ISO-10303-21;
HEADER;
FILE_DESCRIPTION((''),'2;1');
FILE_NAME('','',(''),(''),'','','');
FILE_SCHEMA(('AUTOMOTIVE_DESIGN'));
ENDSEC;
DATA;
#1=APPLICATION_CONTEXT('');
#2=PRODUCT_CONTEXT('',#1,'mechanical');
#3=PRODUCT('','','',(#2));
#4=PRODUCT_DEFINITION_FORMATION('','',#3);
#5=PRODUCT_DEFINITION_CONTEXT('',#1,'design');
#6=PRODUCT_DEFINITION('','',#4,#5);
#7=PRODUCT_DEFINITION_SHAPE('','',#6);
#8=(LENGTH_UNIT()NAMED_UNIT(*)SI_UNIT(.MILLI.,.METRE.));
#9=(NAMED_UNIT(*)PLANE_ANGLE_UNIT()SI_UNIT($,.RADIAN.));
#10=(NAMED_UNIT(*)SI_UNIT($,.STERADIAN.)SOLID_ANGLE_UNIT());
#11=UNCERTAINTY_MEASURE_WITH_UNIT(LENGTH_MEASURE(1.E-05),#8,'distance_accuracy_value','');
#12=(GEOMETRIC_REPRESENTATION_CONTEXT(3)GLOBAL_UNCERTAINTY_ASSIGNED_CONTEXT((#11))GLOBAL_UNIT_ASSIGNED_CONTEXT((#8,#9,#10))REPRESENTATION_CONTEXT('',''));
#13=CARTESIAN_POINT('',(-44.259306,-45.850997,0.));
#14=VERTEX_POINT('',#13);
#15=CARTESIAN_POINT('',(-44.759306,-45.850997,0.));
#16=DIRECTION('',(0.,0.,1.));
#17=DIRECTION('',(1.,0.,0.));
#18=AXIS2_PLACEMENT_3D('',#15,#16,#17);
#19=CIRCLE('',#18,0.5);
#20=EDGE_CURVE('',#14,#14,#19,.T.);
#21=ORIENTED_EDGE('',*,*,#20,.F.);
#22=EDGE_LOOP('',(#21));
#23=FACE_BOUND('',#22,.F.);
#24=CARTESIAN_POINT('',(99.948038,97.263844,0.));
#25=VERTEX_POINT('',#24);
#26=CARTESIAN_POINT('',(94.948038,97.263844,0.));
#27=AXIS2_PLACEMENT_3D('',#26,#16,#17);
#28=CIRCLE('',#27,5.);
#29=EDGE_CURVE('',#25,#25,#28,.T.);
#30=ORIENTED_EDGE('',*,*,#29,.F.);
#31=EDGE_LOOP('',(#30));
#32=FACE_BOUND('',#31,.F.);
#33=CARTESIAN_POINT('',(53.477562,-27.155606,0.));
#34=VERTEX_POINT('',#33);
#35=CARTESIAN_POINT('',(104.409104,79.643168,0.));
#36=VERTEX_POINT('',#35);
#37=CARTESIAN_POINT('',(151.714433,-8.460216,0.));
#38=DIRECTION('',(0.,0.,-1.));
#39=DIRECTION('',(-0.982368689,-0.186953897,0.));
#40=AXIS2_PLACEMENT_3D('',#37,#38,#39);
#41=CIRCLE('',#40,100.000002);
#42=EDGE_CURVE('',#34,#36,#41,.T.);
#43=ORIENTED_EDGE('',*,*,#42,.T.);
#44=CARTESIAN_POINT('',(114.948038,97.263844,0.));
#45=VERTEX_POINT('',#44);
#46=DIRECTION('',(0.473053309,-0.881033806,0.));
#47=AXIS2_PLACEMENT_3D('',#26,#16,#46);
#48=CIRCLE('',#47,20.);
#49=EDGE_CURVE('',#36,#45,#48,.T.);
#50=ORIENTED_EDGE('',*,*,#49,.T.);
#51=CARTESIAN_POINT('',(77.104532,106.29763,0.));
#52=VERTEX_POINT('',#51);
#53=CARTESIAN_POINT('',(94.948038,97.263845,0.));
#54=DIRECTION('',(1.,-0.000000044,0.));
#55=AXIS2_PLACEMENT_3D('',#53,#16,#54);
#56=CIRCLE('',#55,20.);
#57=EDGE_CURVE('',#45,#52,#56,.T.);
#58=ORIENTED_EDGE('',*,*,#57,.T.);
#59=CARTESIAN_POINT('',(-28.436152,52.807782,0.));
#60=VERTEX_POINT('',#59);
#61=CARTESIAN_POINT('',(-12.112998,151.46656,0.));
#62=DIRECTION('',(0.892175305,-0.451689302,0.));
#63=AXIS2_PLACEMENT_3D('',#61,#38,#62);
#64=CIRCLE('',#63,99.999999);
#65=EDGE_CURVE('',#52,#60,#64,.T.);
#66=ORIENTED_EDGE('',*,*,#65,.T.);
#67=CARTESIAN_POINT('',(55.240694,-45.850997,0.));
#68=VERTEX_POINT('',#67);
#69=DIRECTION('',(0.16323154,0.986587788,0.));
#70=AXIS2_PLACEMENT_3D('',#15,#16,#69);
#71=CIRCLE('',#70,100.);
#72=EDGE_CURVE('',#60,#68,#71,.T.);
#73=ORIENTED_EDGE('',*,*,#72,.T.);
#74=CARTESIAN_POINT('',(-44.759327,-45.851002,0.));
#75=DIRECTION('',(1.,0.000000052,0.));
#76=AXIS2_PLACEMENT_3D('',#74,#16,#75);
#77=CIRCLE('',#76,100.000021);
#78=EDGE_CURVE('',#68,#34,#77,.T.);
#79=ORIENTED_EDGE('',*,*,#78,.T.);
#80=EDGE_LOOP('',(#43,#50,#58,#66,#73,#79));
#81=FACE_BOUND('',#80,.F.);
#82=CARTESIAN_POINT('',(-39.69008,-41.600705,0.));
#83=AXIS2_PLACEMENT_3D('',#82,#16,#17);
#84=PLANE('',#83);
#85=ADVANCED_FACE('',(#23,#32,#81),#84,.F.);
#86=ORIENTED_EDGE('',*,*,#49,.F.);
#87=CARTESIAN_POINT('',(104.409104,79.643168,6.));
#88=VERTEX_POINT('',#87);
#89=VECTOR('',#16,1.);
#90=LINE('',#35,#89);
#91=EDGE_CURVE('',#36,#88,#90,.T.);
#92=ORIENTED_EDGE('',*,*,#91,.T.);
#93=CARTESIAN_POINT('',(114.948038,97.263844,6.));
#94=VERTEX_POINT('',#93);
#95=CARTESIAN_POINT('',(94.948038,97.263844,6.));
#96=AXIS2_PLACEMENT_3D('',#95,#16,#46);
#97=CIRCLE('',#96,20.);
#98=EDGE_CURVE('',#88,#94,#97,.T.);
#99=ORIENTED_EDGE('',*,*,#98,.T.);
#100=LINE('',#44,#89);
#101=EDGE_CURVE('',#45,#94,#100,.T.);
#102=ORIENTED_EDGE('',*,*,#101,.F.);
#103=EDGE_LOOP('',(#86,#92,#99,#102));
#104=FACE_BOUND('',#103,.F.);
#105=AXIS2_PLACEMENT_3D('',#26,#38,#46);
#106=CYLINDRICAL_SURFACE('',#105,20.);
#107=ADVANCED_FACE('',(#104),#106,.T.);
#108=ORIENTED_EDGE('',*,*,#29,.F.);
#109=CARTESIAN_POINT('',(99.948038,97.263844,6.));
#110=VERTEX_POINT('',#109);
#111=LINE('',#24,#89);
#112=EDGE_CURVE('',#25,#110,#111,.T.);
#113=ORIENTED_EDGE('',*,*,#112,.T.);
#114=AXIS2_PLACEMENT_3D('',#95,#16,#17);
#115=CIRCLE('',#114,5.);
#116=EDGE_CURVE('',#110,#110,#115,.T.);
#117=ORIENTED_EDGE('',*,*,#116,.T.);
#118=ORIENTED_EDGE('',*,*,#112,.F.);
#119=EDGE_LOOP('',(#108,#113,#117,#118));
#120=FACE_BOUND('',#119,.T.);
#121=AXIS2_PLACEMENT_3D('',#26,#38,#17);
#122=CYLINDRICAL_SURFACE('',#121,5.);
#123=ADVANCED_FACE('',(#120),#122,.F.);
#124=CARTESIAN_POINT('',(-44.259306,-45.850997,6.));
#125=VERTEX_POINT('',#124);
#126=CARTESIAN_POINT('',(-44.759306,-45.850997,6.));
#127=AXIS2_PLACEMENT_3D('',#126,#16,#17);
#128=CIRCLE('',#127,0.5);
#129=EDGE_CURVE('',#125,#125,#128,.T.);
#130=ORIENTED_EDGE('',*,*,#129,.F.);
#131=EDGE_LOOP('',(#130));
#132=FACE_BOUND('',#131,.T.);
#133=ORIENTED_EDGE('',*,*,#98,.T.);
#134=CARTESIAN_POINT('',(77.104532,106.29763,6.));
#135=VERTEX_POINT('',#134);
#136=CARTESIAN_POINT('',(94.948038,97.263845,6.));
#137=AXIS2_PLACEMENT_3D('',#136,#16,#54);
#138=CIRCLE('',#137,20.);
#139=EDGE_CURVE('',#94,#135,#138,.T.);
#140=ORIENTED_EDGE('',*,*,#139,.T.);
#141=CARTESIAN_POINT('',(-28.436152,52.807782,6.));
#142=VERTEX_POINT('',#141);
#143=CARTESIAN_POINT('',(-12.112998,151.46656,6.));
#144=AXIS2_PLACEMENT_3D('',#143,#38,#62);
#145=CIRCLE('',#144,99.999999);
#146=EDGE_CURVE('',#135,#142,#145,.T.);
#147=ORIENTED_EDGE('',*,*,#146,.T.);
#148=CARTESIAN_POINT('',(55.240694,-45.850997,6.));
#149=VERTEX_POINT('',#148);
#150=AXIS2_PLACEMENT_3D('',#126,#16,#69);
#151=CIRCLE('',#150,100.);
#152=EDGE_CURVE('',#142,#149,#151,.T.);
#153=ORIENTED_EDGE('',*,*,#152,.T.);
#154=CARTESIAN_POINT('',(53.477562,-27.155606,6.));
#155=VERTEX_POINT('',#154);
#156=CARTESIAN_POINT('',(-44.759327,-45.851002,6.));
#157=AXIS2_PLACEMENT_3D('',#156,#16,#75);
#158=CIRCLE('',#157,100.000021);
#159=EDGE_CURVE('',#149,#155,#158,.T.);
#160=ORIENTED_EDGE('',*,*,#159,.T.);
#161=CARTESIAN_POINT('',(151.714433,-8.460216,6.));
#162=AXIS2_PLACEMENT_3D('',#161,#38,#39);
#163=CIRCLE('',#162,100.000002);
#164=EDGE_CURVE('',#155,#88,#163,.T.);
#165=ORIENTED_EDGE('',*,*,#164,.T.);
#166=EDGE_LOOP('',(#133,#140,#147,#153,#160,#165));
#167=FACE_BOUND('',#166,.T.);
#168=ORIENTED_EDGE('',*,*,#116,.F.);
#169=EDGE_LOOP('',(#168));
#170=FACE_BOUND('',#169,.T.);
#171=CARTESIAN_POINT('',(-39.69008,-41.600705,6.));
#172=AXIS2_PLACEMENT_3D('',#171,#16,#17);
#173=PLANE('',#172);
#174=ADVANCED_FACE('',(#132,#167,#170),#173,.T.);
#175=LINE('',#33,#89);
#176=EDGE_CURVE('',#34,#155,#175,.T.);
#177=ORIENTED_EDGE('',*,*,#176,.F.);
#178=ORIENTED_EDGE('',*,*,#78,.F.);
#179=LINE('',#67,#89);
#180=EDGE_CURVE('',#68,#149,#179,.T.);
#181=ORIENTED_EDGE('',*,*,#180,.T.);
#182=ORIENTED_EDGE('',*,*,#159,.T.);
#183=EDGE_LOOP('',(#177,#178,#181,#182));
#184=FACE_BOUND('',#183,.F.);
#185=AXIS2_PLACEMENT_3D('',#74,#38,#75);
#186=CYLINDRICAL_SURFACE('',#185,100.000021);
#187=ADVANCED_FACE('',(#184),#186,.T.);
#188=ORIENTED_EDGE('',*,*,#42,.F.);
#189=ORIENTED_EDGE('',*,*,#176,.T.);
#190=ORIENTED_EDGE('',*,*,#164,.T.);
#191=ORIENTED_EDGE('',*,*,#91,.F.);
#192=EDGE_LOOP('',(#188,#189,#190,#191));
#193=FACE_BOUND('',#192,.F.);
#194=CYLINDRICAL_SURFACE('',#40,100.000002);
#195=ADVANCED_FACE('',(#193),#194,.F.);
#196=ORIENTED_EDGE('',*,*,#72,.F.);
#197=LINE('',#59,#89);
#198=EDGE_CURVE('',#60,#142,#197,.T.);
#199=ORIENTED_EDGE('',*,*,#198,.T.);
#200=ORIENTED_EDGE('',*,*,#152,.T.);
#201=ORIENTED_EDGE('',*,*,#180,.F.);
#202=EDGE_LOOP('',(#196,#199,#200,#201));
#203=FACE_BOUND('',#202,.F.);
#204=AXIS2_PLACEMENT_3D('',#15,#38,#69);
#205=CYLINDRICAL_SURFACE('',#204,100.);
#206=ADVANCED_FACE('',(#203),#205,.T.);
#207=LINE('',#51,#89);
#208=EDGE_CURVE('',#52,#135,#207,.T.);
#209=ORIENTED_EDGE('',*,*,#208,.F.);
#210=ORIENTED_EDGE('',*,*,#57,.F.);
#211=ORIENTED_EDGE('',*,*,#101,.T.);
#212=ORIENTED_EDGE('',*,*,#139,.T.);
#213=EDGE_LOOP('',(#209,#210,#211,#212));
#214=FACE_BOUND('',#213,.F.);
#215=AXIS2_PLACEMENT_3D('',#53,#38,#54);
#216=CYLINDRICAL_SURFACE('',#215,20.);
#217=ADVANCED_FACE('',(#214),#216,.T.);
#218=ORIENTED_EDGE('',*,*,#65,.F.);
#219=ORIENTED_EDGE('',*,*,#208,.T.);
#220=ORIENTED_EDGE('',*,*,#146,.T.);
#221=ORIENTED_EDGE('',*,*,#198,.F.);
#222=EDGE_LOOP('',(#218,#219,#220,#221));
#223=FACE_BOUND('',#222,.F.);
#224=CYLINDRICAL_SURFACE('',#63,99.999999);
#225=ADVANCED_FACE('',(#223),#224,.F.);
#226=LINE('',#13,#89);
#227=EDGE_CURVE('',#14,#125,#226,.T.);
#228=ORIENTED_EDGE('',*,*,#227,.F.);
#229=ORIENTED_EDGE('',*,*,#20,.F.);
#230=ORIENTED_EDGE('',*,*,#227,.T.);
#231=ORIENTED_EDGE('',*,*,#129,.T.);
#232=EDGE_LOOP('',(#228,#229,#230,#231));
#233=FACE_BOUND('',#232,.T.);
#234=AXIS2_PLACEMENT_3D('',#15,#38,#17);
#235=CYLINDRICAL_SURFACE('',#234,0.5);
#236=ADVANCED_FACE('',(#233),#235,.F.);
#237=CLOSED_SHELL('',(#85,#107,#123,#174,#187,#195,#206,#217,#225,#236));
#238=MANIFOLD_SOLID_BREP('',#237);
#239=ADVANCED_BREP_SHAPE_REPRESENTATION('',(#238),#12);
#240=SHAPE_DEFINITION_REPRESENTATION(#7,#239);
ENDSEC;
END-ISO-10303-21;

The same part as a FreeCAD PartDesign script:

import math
import FreeCAD as App
import Part
import Sketcher

doc = App.newDocument("Part")
params = doc.addObject("Spreadsheet::Sheet", "Params")
for row, (alias, value) in enumerate([
    ("sketch1_diameter", "1 mm"),
    ("sketch1_diameter2", "10 mm"),
    ("sketch1_radius", "100 mm"),
    ("sketch1_radius2", "20 mm"),
    ("pad1_length", "6 mm"),
], start=1):
    params.set(f"A{row}", alias)
    params.set(f"B{row}", "=" + value)
    params.setAlias(f"B{row}", alias)

body = doc.addObject("PartDesign::Body", "Body")

sketch1 = body.newObject("Sketcher::SketchObject", "Sketch")
sketch1.AttachmentSupport = (doc.getObject("XY_Plane"), [""])
sketch1.MapMode = "FlatFace"
sketch1.addGeometry(Part.ArcOfCircle(Part.Circle(App.Vector(-44.759306, -45.850997, 0), App.Vector(0, 0, 1), 100), math.radians(80.605484), math.radians(360)), False)
sketch1.addGeometry(Part.ArcOfCircle(Part.Circle(App.Vector(-44.759327, -45.851002, 0), App.Vector(0, 0, 1), 100.000021), math.radians(0.000003), math.radians(10.775072)), False)
sketch1.addGeometry(Part.ArcOfCircle(Part.Circle(App.Vector(151.714433, -8.460216, 0), App.Vector(0, 0, 1), 100.000002), math.radians(118.232675), math.radians(190.77507)), False)
sketch1.addGeometry(Part.ArcOfCircle(Part.Circle(App.Vector(94.948038, 97.263844, 0), App.Vector(0, 0, 1), 20), math.radians(-61.767323), math.radians(-0.000001)), False)
sketch1.addGeometry(Part.ArcOfCircle(Part.Circle(App.Vector(94.948038, 97.263845, 0), App.Vector(0, 0, 1), 20), math.radians(-0.000003), math.radians(153.147883)), False)
sketch1.addGeometry(Part.ArcOfCircle(Part.Circle(App.Vector(-12.112998, 151.46656, 0), App.Vector(0, 0, 1), 99.999999), math.radians(-99.394517), math.radians(-26.85212)), False)
sketch1.addGeometry(Part.Circle(App.Vector(-44.759306, -45.850997, 0), App.Vector(0, 0, 1), 0.5), False)
sketch1.addGeometry(Part.Circle(App.Vector(94.948038, 97.263844, 0), App.Vector(0, 0, 1), 5), False)
sketch1.addConstraint(Sketcher.Constraint("Tangent", 0, 2, 1, 1))
sketch1.addConstraint(Sketcher.Constraint("Tangent", 1, 2, 2, 2))
sketch1.addConstraint(Sketcher.Constraint("Tangent", 2, 1, 3, 1))
sketch1.addConstraint(Sketcher.Constraint("Tangent", 3, 2, 4, 1))
sketch1.addConstraint(Sketcher.Constraint("Tangent", 4, 2, 5, 2))
sketch1.addConstraint(Sketcher.Constraint("Tangent", 5, 1, 0, 1))
sketch1.addConstraint(Sketcher.Constraint("Coincident", 6, 3, 0, 3))
sketch1.addConstraint(Sketcher.Constraint("Coincident", 7, 3, 3, 3))
sketch1.addConstraint(Sketcher.Constraint("Equal", 0, 2))
sketch1.addConstraint(Sketcher.Constraint("Equal", 3, 4))
sketch1.addConstraint(Sketcher.Constraint("Equal", 0, 5))
sketch1.addConstraint(Sketcher.Constraint("Horizontal", 6, 3, 0, 2))
sketch1.addConstraint(Sketcher.Constraint("Horizontal", 7, 3, 3, 2))
sketch1.addConstraint(Sketcher.Constraint("Diameter", 6, 1.0))
sketch1.addConstraint(Sketcher.Constraint("Diameter", 7, 10.0))
sketch1.addConstraint(Sketcher.Constraint("Radius", 0, 100.0))
sketch1.addConstraint(Sketcher.Constraint("Radius", 3, 20.0))
sketch1.addConstraint(Sketcher.Constraint("Radius", 1, 100.000021))
sketch1.addConstraint(Sketcher.Constraint("DistanceX", -1, 1, 4, 3, 94.948038))
sketch1.addConstraint(Sketcher.Constraint("DistanceY", -1, 1, 5, 3, 151.46656))
sketch1.addConstraint(Sketcher.Constraint("DistanceY", -1, 1, 2, 1, 79.643168))
sketch1.addConstraint(Sketcher.Constraint("DistanceY", -1, 1, 5, 1, 52.807782))
sketch1.setExpression("Constraints[13]", "Params.sketch1_diameter")
sketch1.setExpression("Constraints[14]", "Params.sketch1_diameter2")
sketch1.setExpression("Constraints[15]", "Params.sketch1_radius")
sketch1.setExpression("Constraints[16]", "Params.sketch1_radius2")
pad1 = body.newObject("PartDesign::Pad", "Pad")
pad1.Profile = sketch1
pad1.setExpression("Length", "Params.pad1_length")

doc.recompute()
